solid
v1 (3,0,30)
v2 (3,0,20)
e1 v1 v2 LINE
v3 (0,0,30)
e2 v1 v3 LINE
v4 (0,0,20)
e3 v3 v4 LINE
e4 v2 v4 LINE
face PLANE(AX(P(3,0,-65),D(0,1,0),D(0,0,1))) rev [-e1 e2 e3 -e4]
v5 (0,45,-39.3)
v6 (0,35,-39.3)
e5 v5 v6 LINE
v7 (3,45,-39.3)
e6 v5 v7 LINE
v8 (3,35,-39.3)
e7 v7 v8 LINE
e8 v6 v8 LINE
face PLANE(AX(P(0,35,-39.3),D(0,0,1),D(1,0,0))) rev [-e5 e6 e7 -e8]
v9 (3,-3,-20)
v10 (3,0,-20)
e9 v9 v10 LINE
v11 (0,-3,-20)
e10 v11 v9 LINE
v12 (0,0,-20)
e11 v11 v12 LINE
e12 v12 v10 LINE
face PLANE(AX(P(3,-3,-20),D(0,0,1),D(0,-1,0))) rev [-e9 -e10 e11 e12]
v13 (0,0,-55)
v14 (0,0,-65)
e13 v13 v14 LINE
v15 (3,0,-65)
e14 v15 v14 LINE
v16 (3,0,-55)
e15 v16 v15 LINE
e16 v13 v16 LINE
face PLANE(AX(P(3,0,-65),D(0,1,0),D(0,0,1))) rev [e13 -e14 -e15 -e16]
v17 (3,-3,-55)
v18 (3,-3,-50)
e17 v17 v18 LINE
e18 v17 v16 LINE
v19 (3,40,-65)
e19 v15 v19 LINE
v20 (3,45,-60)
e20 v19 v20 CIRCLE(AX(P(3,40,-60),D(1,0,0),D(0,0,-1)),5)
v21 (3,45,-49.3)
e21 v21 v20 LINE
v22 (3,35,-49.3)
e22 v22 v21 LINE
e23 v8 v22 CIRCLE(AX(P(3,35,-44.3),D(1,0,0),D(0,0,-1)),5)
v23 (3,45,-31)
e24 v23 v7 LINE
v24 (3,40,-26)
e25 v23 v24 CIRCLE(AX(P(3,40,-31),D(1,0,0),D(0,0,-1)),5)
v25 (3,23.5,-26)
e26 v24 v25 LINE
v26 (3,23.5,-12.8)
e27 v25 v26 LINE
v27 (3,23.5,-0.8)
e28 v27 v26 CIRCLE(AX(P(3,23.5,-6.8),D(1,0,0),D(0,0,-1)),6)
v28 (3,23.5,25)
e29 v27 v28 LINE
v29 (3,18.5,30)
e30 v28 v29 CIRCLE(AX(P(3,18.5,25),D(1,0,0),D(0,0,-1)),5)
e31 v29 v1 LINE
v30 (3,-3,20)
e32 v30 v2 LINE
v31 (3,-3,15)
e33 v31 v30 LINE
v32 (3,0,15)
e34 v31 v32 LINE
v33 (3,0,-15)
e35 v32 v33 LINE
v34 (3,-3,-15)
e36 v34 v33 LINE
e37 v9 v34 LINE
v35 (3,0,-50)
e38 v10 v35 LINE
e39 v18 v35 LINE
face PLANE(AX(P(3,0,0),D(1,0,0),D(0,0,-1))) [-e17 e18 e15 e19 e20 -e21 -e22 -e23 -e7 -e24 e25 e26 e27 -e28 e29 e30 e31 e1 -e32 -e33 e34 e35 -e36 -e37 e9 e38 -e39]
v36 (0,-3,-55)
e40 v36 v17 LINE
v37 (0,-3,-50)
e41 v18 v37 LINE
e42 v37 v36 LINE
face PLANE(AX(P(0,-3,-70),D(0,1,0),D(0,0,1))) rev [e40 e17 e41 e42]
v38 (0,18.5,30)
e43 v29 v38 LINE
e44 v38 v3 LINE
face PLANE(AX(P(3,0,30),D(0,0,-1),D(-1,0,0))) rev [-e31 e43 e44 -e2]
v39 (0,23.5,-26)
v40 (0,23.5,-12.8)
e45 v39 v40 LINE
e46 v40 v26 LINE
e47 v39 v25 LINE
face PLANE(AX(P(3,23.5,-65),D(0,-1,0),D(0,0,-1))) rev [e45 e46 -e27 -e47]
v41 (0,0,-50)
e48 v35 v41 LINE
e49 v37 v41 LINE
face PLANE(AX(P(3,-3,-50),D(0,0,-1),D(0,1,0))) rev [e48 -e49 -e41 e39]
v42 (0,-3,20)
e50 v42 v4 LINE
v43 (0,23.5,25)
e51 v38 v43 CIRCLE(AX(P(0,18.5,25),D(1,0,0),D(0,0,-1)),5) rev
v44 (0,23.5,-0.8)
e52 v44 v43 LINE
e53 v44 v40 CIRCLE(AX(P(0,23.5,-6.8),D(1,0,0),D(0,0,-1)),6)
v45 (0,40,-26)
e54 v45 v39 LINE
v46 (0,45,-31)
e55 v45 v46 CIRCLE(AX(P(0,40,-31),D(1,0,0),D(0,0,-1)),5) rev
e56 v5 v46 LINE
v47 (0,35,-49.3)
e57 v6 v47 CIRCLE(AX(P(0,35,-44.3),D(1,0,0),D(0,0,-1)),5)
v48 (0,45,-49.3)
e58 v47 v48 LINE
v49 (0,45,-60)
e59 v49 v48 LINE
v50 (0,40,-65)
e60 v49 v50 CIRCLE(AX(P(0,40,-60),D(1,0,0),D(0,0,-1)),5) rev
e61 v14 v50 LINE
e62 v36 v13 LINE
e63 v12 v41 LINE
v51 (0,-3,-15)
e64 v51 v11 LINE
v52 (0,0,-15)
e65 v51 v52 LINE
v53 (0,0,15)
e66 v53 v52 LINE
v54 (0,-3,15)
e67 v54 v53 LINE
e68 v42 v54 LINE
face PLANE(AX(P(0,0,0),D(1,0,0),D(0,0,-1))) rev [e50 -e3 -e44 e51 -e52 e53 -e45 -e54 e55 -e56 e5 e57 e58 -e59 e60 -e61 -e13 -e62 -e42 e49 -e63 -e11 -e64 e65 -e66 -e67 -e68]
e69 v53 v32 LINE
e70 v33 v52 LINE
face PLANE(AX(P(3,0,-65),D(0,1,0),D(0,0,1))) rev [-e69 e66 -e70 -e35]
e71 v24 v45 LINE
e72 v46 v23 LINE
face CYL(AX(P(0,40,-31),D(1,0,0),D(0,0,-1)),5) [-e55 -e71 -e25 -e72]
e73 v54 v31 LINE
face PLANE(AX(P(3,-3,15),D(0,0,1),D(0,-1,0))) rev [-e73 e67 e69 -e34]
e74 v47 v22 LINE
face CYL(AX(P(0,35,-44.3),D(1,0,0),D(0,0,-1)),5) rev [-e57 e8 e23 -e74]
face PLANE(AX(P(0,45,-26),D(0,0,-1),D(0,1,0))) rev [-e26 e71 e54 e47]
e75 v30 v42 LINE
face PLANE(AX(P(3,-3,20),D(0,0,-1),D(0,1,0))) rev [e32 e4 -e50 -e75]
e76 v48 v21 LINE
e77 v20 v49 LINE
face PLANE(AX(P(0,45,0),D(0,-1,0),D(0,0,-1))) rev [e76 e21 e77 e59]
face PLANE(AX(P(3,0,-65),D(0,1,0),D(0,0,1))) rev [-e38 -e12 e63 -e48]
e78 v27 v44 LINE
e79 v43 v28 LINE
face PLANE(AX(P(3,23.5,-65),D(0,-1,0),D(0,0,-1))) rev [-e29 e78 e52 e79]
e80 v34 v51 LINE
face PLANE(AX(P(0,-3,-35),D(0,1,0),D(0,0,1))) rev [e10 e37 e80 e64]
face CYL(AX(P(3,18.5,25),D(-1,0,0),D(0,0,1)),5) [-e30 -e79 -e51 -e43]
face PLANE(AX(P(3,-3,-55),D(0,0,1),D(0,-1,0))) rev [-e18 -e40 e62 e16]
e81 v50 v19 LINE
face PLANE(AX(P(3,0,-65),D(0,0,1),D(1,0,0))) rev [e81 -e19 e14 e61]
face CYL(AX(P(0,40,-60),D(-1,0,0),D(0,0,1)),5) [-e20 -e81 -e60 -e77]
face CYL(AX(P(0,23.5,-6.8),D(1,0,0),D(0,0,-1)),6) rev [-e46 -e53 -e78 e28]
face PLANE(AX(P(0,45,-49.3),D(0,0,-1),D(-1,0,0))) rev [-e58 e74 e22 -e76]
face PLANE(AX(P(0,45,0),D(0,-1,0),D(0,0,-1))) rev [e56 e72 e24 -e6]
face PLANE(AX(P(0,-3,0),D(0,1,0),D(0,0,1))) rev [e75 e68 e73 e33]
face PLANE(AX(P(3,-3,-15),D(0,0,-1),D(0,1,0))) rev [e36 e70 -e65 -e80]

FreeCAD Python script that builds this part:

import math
import FreeCAD as App
import Part
import Sketcher
Q = App.Units.Quantity


def edges_at(feature, points):
    """Names of the edges that pass closest to the given points."""
    edges = feature.Shape.Edges
    near = lambda p: min(range(len(edges)), key=lambda i: edges[i].distToShape(Part.Vertex(*p))[0])
    return sorted({f"Edge{near(p) + 1}" for p in points})

doc = App.newDocument("Part")
body = doc.addObject("PartDesign::Body", "Body")

sketch1 = body.newObject("Sketcher::SketchObject", "Sketch")
sketch1.AttachmentSupport = (doc.getObject("YZ_Plane"), [""])
sketch1.MapMode = "FlatFace"
sketch1.addGeometry([
    Part.LineSegment(App.Vector(24, 30, 0), App.Vector(0, 30, 0)),
    Part.LineSegment(App.Vector(0, 30, 0), App.Vector(0, -65, 0)),
    Part.LineSegment(App.Vector(0, -65, 0), App.Vector(24, -65, 0)),
    Part.LineSegment(App.Vector(24, -65, 0), App.Vector(24, 30, 0)),
], False)
sketch1.addConstraint([
    Sketcher.Constraint("Coincident", 0, 2, 1, 1),
    Sketcher.Constraint("Coincident", 1, 2, 2, 1),
    Sketcher.Constraint("Coincident", 2, 2, 3, 1),
    Sketcher.Constraint("Coincident", 3, 2, 0, 1),
    Sketcher.Constraint("Horizontal", 0),
    Sketcher.Constraint("Vertical", 1),
    Sketcher.Constraint("Horizontal", 2),
    Sketcher.Constraint("Vertical", 3),
    Sketcher.Constraint("PointOnObject", 0, 2, -2),
    Sketcher.Constraint("DistanceY", 1, 2, 1, 1, Q("95 mm")),
    Sketcher.Constraint("DistanceX", 0, 2, 0, 1, Q("23.5 mm")),
    Sketcher.Constraint("DistanceY", -1, 1, 0, 2, Q("30 mm")),
])
pad1 = body.newObject("PartDesign::Pad", "Pad")
pad1.Profile = sketch1
pad1.Length = 3

sketch2 = body.newObject("Sketcher::SketchObject", "Sketch001")
sketch2.AttachmentSupport = (doc.getObject("YZ_Plane"), [""])
sketch2.MapMode = "FlatFace"
sketch2.AttachmentOffset = App.Placement(App.Vector(0, 0, 3), App.Rotation())
sketch2.addGeometry(Part.Circle(App.Vector(24, -7, 0), App.Vector(0, 0, 1), 6), False)
sketch2.addConstraint([
    Sketcher.Constraint("Diameter", 0, Q("12 mm")),
    Sketcher.Constraint("DistanceX", -1, 1, 0, 3, Q("23.5 mm")),
    Sketcher.Constraint("DistanceY", 0, 3, -1, 1, Q("6.8 mm")),
])
pocket1 = body.newObject("PartDesign::Pocket", "Pocket")
pocket1.Profile = sketch2
pocket1.Type = "ThroughAll"

sketch3 = body.newObject("Sketcher::SketchObject", "Sketch002")
sketch3.AttachmentSupport = (doc.getObject("XZ_Plane"), [""])
sketch3.MapMode = "FlatFace"
sketch3.addGeometry([
    Part.LineSegment(App.Vector(0, 20, 0), App.Vector(0, 15, 0)),
    Part.LineSegment(App.Vector(0, 15, 0), App.Vector(3, 15, 0)),
    Part.LineSegment(App.Vector(3, 15, 0), App.Vector(3, 20, 0)),
    Part.LineSegment(App.Vector(3, 20, 0), App.Vector(0, 20, 0)),
], False)
sketch3.addConstraint([
    Sketcher.Constraint("Coincident", 0, 2, 1, 1),
    Sketcher.Constraint("Coincident", 1, 2, 2, 1),
    Sketcher.Constraint("Coincident", 2, 2, 3, 1),
    Sketcher.Constraint("Coincident", 3, 2, 0, 1),
    Sketcher.Constraint("Vertical", 0),
    Sketcher.Constraint("Horizontal", 1),
    Sketcher.Constraint("Vertical", 2),
    Sketcher.Constraint("Horizontal", 3),
    Sketcher.Constraint("PointOnObject", 0, 2, -2),
    Sketcher.Constraint("DistanceX", 1, 1, 1, 2, Q("3 mm")),
    Sketcher.Constraint("DistanceY", 0, 2, 0, 1, Q("5 mm")),
    Sketcher.Constraint("DistanceY", -1, 1, 0, 2, Q("15 mm")),
])
pad2 = body.newObject("PartDesign::Pad", "Pad001")
pad2.Profile = sketch3
pad2.Length = 3

sketch4 = body.newObject("Sketcher::SketchObject", "Sketch003")
sketch4.AttachmentSupport = (doc.getObject("XZ_Plane"), [""])
sketch4.MapMode = "FlatFace"
sketch4.AttachmentOffset = App.Placement(App.Vector(0, 0, -23.5), App.Rotation())
sketch4.addGeometry([
    Part.LineSegment(App.Vector(0, -65, 0), App.Vector(0, -26, 0)),
    Part.LineSegment(App.Vector(0, -26, 0), App.Vector(3, -26, 0)),
    Part.LineSegment(App.Vector(3, -26, 0), App.Vector(3, -65, 0)),
    Part.LineSegment(App.Vector(3, -65, 0), App.Vector(0, -65, 0)),
], False)
sketch4.addConstraint([
    Sketcher.Constraint("Coincident", 0, 2, 1, 1),
    Sketcher.Constraint("Coincident", 1, 2, 2, 1),
    Sketcher.Constraint("Coincident", 2, 2, 3, 1),
    Sketcher.Constraint("Coincident", 3, 2, 0, 1),
    Sketcher.Constraint("Vertical", 0),
    Sketcher.Constraint("Horizontal", 1),
    Sketcher.Constraint("Vertical", 2),
    Sketcher.Constraint("Horizontal", 3),
    Sketcher.Constraint("PointOnObject", 0, 2, -2),
    Sketcher.Constraint("DistanceX", 1, 1, 1, 2, Q("3 mm")),
    Sketcher.Constraint("DistanceY", 0, 1, 0, 2, Q("39 mm")),
    Sketcher.Constraint("DistanceY", 0, 2, -1, 1, Q("26 mm")),
])
pad3 = body.newObject("PartDesign::Pad", "Pad002")
pad3.Profile = sketch4
pad3.Length = 21.5
pad3.Reversed = True

sketch5 = body.newObject("Sketcher::SketchObject", "Sketch004")
sketch5.AttachmentSupport = (doc.getObject("YZ_Plane"), [""])
sketch5.MapMode = "FlatFace"
sketch5.AttachmentOffset = App.Placement(App.Vector(0, 0, 3), App.Rotation())
sketch5.addGeometry([
    Part.LineSegment(App.Vector(45, -39, 0), App.Vector(35, -39, 0)),
    Part.ArcOfCircle(Part.Circle(App.Vector(35, -44, 0), App.Vector(0, 0, 1), 5), math.radians(90), math.radians(270)),
    Part.LineSegment(App.Vector(35, -49, 0), App.Vector(45, -49, 0)),
    Part.LineSegment(App.Vector(45, -49, 0), App.Vector(45, -39, 0)),
], False)
sketch5.addConstraint([
    Sketcher.Constraint("Tangent", 0, 2, 1, 1),
    Sketcher.Constraint("Tangent", 1, 2, 2, 1),
    Sketcher.Constraint("Coincident", 2, 2, 3, 1),
    Sketcher.Constraint("Coincident", 3, 2, 0, 1),
    Sketcher.Constraint("Horizontal", 0),
    Sketcher.Constraint("Horizontal", 2),
    Sketcher.Constraint("Vertical", 3),
    Sketcher.Constraint("Equal", 2, 3),
    Sketcher.Constraint("Radius", 1, Q("5 mm")),
    Sketcher.Constraint("DistanceX", -1, 1, 1, 3, Q("35 mm")),
    Sketcher.Constraint("DistanceY", 1, 3, -1, 1, Q("44.3 mm")),
])
pocket2 = body.newObject("PartDesign::Pocket", "Pocket001")
pocket2.Profile = sketch5
pocket2.Type = "ThroughAll"
doc.recompute()

fillet = body.newObject("PartDesign::Fillet", "Fillet")
fillet.Base = (pocket2, edges_at(pocket2, [(1.5, 45, -26), (1.5, 45, -65), (1.5, 23.5, 30)]))
fillet.Radius = 5
doc.recompute()

linearpattern = body.newObject("PartDesign::LinearPattern", "LinearPattern")
linearpattern.Originals = [pad2]
linearpattern.Direction = (doc.getObject("Z_Axis"), [""])
linearpattern.Mode = "offset"
linearpattern.Offset = 35
linearpattern.Occurrences = 3
linearpattern.Reversed = True
body.Tip = linearpattern

doc.recompute()
